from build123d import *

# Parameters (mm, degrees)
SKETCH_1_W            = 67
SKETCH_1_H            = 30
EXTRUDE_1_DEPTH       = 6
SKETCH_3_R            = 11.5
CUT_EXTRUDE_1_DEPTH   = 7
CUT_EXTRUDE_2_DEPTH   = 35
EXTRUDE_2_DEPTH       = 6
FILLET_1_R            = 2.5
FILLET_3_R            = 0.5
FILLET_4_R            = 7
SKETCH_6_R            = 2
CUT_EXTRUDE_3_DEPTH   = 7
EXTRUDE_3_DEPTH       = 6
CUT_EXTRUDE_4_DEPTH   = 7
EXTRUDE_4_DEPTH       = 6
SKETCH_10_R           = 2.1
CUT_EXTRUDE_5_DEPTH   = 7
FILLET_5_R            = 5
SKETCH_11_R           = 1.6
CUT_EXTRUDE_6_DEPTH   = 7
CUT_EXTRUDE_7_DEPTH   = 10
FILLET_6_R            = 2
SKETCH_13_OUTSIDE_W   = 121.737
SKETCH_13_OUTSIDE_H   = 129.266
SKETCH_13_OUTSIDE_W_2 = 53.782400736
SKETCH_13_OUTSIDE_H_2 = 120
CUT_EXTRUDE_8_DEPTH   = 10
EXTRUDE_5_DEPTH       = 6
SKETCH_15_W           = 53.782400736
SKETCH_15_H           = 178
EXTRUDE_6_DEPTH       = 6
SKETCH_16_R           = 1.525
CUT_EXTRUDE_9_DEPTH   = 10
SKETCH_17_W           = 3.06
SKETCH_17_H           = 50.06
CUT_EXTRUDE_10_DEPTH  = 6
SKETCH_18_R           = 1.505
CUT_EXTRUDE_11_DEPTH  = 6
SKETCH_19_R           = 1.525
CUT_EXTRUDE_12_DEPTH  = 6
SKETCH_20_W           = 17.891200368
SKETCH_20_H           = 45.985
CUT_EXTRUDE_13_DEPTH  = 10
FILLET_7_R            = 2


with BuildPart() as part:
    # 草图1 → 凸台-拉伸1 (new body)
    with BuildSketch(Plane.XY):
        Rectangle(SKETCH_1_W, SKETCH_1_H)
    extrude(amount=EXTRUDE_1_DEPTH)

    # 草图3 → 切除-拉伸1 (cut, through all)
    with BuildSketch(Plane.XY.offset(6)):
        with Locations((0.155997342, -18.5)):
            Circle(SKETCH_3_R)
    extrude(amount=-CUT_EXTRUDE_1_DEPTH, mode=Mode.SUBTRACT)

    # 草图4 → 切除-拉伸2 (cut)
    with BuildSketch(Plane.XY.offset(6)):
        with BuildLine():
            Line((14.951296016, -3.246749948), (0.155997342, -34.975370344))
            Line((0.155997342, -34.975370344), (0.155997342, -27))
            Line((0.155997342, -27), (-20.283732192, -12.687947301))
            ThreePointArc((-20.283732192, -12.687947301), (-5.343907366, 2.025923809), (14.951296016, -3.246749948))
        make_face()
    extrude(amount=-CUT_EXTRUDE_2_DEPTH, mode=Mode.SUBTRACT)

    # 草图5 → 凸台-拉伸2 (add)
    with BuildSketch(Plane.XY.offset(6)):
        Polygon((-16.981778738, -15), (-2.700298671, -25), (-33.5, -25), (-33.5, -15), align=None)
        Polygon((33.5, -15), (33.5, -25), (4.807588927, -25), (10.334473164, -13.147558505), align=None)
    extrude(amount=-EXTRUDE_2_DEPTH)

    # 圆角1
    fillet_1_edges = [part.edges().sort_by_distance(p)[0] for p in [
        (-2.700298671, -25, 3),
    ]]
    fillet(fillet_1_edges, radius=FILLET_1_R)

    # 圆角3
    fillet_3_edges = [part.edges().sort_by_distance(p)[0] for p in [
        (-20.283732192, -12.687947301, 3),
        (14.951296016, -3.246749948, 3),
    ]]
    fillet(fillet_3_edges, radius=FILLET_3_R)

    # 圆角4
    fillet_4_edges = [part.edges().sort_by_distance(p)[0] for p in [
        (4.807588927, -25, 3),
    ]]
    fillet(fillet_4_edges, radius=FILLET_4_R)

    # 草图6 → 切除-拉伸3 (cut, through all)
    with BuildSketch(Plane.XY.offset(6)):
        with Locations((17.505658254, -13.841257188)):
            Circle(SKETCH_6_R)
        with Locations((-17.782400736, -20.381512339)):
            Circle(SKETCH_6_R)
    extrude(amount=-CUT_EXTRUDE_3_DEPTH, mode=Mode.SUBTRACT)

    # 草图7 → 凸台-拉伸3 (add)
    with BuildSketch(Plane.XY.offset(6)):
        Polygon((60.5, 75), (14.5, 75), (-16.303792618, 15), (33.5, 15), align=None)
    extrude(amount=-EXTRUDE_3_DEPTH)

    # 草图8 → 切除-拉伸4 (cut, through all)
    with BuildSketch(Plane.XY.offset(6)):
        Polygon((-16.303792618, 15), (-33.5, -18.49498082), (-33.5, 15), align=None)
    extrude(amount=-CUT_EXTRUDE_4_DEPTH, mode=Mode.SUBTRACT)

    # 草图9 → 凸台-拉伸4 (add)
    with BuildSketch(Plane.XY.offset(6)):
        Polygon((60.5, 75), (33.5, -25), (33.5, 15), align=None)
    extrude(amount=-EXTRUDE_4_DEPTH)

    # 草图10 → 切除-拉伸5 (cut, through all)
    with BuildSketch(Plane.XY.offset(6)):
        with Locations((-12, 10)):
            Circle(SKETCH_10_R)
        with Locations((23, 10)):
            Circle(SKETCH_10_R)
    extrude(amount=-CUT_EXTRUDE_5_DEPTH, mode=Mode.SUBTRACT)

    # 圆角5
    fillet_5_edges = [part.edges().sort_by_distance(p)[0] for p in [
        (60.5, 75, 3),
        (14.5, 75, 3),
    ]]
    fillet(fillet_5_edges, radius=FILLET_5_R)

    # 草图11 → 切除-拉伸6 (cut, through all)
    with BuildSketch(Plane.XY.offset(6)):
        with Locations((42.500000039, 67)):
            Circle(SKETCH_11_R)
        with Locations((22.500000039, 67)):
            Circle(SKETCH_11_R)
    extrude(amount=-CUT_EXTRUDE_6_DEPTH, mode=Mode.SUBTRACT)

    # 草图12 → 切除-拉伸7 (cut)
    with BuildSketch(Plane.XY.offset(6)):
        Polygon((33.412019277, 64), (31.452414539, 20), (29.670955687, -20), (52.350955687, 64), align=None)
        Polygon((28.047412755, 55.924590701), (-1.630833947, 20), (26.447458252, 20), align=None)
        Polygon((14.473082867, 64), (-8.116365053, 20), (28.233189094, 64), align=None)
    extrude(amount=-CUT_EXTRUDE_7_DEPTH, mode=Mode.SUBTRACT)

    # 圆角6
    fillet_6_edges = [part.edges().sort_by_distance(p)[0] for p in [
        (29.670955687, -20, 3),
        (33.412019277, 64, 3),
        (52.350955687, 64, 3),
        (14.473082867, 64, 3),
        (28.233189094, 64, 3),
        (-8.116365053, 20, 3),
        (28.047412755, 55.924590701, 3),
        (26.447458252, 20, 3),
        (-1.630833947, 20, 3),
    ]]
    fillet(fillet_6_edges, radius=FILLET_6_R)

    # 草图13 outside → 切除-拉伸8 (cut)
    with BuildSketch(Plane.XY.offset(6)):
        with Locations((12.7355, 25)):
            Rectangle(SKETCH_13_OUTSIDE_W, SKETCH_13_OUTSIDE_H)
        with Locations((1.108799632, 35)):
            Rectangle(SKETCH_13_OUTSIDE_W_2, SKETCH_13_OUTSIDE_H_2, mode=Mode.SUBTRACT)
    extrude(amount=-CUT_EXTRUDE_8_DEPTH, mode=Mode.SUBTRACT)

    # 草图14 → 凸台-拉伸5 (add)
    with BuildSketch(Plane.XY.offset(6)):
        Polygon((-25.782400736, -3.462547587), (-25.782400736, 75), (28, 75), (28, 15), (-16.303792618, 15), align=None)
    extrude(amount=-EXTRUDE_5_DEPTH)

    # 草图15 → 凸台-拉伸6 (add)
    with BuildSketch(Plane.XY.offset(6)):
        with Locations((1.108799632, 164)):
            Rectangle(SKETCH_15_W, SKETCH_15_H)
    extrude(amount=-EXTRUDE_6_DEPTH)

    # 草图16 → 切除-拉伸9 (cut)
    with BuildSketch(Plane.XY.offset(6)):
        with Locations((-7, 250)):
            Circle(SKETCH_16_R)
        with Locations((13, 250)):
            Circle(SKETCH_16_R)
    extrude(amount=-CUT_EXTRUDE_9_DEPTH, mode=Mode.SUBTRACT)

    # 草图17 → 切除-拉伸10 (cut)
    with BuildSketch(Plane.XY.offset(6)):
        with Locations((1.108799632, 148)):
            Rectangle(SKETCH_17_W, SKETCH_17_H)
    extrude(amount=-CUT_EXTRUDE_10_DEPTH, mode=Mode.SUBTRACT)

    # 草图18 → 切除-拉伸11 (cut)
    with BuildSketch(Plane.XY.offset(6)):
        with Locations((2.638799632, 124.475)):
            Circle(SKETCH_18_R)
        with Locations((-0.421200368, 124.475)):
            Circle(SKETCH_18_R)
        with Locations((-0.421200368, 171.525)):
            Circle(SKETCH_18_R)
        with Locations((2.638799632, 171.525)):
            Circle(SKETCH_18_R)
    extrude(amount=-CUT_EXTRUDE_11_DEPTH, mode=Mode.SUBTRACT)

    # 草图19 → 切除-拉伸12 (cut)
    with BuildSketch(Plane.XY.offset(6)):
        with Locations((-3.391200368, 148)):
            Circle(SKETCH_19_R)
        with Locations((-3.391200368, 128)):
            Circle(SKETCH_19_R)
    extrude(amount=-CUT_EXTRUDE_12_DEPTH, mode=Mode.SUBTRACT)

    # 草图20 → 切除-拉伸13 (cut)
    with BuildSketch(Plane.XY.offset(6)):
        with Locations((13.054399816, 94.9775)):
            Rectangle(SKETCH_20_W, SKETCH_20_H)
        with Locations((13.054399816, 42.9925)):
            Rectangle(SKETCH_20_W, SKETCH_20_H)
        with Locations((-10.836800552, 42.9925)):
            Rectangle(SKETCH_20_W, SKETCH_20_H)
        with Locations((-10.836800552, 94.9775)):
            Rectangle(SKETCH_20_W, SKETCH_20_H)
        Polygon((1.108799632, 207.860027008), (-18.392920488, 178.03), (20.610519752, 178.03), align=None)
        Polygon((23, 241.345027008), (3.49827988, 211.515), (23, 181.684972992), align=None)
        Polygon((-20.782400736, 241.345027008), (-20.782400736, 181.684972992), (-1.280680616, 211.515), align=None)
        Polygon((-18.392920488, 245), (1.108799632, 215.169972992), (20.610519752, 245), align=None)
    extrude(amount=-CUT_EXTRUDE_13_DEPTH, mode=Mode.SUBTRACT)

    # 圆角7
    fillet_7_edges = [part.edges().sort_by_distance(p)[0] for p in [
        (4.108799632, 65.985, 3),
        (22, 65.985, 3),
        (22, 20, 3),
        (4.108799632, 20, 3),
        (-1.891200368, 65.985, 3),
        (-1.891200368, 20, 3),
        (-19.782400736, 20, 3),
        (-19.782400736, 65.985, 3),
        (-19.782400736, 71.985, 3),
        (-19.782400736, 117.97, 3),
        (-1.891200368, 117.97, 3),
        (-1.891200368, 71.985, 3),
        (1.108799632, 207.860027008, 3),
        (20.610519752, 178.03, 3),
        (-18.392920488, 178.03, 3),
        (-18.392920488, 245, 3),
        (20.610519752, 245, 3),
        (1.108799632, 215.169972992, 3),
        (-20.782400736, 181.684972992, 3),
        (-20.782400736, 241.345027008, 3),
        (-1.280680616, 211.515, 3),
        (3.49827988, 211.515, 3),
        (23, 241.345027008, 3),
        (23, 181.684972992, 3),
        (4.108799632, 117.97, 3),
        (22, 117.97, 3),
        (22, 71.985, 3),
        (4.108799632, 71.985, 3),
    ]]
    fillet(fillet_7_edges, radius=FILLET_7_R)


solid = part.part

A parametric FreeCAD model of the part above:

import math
import FreeCAD as App
import Part
import Sketcher
Q = App.Units.Quantity


def edges_at(feature, points):
    """Names of the edges that pass closest to the given points."""
    edges = feature.Shape.Edges
    near = lambda p: min(range(len(edges)), key=lambda i: edges[i].distToShape(Part.Vertex(*p))[0])
    return sorted({f"Edge{near(p) + 1}" for p in points})

doc = App.newDocument("Part")
body = doc.addObject("PartDesign::Body", "Body")

# Sketch on XY plane
sketch1 = doc.addObject("Sketcher::SketchObject", "Sketch")
body.addObject(sketch1)
sketch1.AttachmentSupport = (doc.XY_Plane, [""])
sketch1.MapMode = "FlatFace"
sketch1.addGeometry([
    Part.LineSegment(App.Vector(-34, 15, 0), App.Vector(-34, -15, 0)),
    Part.LineSegment(App.Vector(-34, -15, 0), App.Vector(34, -15, 0)),
    Part.LineSegment(App.Vector(34, -15, 0), App.Vector(34, 15, 0)),
    Part.LineSegment(App.Vector(34, 15, 0), App.Vector(-34, 15, 0)),
], False)
sketch1.addConstraint([
    Sketcher.Constraint("Coincident", 0, 2, 1, 1),
    Sketcher.Constraint("Coincident", 1, 2, 2, 1),
    Sketcher.Constraint("Coincident", 2, 2, 3, 1),
    Sketcher.Constraint("Coincident", 3, 2, 0, 1),
    Sketcher.Constraint("Vertical", 0),
    Sketcher.Constraint("Horizontal", 1),
    Sketcher.Constraint("Vertical", 2),
    Sketcher.Constraint("Horizontal", 3),
    Sketcher.Constraint("Symmetric", 0, 2, 2, 2, -1, 1),
    Sketcher.Constraint("DistanceX", 1, 1, 1, 2, Q("67 mm")),
    Sketcher.Constraint("DistanceY", 0, 2, 0, 1, Q("30 mm")),
])
pad1 = doc.addObject("PartDesign::Pad", "Pad")
body.addObject(pad1)
pad1.Profile = sketch1
pad1.Length = 6

# Sketch on XY plane
sketch2 = doc.addObject("Sketcher::SketchObject", "Sketch001")
body.addObject(sketch2)
sketch2.AttachmentSupport = (doc.XY_Plane, [""])
sketch2.MapMode = "FlatFace"
sketch2.AttachmentOffset = App.Placement(App.Vector(0, 0, 6), App.Rotation())
sketch2.addGeometry(Part.Circle(App.Vector(0, -18, 0), App.Vector(0, 0, 1), 12), False)
sketch2.addConstraint([
    Sketcher.Constraint("Diameter", 0, Q("23 mm")),
    Sketcher.Constraint("DistanceY", 0, 3, -1, 1, Q("18.5 mm")),
    Sketcher.Constraint("DistanceX", -1, 1, 0, 3, Q("0.155997 mm")),
])
pocket1 = doc.addObject("PartDesign::Pocket", "Pocket")
body.addObject(pocket1)
pocket1.Profile = sketch2
pocket1.Type = "ThroughAll"

# Sketch on XY plane
sketch3 = doc.addObject("Sketcher::SketchObject", "Sketch002")
body.addObject(sketch3)
sketch3.AttachmentSupport = (doc.XY_Plane, [""])
sketch3.MapMode = "FlatFace"
sketch3.AttachmentOffset = App.Placement(App.Vector(0, 0, 6), App.Rotation())
sketch3.addGeometry([
    Part.LineSegment(App.Vector(0, -35, 0), App.Vector(15, -3, 0)),
    Part.ArcOfCircle(Part.Circle(App.Vector(0, -18, 0), App.Vector(0, 0, 1), 21), math.radians(46), math.radians(164)),
    Part.LineSegment(App.Vector(-20, -13, 0), App.Vector(0, -27, 0)),
    Part.LineSegment(App.Vector(0, -27, 0), App.Vector(0, -35, 0)),
], False)
sketch3.addConstraint([
    Sketcher.Constraint("Coincident", 0, 2, 1, 1),
    Sketcher.Constraint("Coincident", 1, 2, 2, 1),
    Sketcher.Constraint("Coincident", 2, 2, 3, 1),
    Sketcher.Constraint("Coincident", 3, 2, 0, 1),
    Sketcher.Constraint("Vertical", 3),
    Sketcher.Constraint("Vertical", 1, 3, 2, 2),
    Sketcher.Constraint("Angle", 0, Q("65 deg")),
    Sketcher.Constraint("Angle", 2, Q("-35 deg")),
    Sketcher.Constraint("Radius", 1, Q("21.25 mm")),
    Sketcher.Constraint("DistanceY", 2, 2, -1, 1, Q("27 mm")),
    Sketcher.Constraint("DistanceY", 1, 3, -1, 1, Q("18.5 mm")),
    Sketcher.Constraint("DistanceY", 3, 2, 3, 1, Q("7.97537 mm")),
    Sketcher.Constraint("DistanceX", -1, 1, 1, 3, Q("0.155997 mm")),
])
pocket2 = doc.addObject("PartDesign::Pocket", "Pocket001")
body.addObject(pocket2)
pocket2.Profile = sketch3
pocket2.Length = 35

# Sketch on XY plane
sketch4 = doc.addObject("Sketcher::SketchObject", "Sketch003")
body.addObject(sketch4)
sketch4.AttachmentSupport = (doc.XY_Plane, [""])
sketch4.MapMode = "FlatFace"
sketch4.AttachmentOffset = App.Placement(App.Vector(0, 0, 6), App.Rotation())
sketch4.addGeometry([
    Part.LineSegment(App.Vector(-3, -25, 0), App.Vector(-17, -15, 0)),  # 0
    Part.LineSegment(App.Vector(-17, -15, 0), App.Vector(-34, -15, 0)),  # 1
    Part.LineSegment(App.Vector(-34, -15, 0), App.Vector(-34, -25, 0)),  # 2
    Part.LineSegment(App.Vector(-34, -25, 0), App.Vector(-3, -25, 0)),  # 3
    Part.LineSegment(App.Vector(34, -25, 0), App.Vector(34, -15, 0)),  # 4
    Part.LineSegment(App.Vector(34, -15, 0), App.Vector(10, -13, 0)),  # 5
    Part.LineSegment(App.Vector(10, -13, 0), App.Vector(5, -25, 0)),  # 6
    Part.LineSegment(App.Vector(5, -25, 0), App.Vector(34, -25, 0)),  # 7
], False)
sketch4.addConstraint([
    Sketcher.Constraint("Coincident", 0, 2, 1, 1),
    Sketcher.Constraint("Coincident", 1, 2, 2, 1),
    Sketcher.Constraint("Coincident", 2, 2, 3, 1),
    Sketcher.Constraint("Coincident", 3, 2, 0, 1),
    Sketcher.Constraint("Coincident", 4, 2, 5, 1),
    Sketcher.Constraint("Coincident", 5, 2, 6, 1),
    Sketcher.Constraint("Coincident", 6, 2, 7, 1),
    Sketcher.Constraint("Coincident", 7, 2, 4, 1),
    Sketcher.Constraint("Horizontal", 1),
    Sketcher.Constraint("Vertical", 2),
    Sketcher.Constraint("Horizontal", 3),
    Sketcher.Constraint("Vertical", 4),
    Sketcher.Constraint("Horizontal", 7),
    Sketcher.Constraint("Symmetric", 1, 2, 4, 2, -2),
    Sketcher.Constraint("Horizontal", 3, 2, 6, 2),
    Sketcher.Constraint("DistanceY", 2, 2, 2, 1, Q("10 mm")),
    Sketcher.Constraint("Angle", 0, Q("145 deg")),
    Sketcher.Constraint("Angle", 6, Q("-115 deg")),
    Sketcher.Constraint("DistanceY", 0, 2, -1, 1, Q("15 mm")),
    Sketcher.Constraint("DistanceX", 1, 2, 4, 2, Q("67 mm")),
    Sketcher.Constraint("DistanceX", 3, 1, 3, 2, Q("30.799701 mm")),
    Sketcher.Constraint("DistanceX", 7, 1, 7, 2, Q("28.692411 mm")),
    Sketcher.Constraint("DistanceY", 5, 2, -1, 1, Q("13.147559 mm")),
])
pad2 = doc.addObject("PartDesign::Pad", "Pad001")
body.addObject(pad2)
pad2.Profile = sketch4
pad2.Length = 6
pad2.Reversed = True
doc.recompute()

fillet = doc.addObject("PartDesign::Fillet", "Fillet")
body.addObject(fillet)
fillet.Base = (pad2, edges_at(pad2, [(-2.7, -25, 3)]))
fillet.Radius = 2.5
doc.recompute()

fillet2 = doc.addObject("PartDesign::Fillet", "Fillet001")
body.addObject(fillet2)
fillet2.Base = (fillet, edges_at(fillet, [(-20.284, -12.688, 3), (14.951, -3.247, 3)]))
fillet2.Radius = 0.5
doc.recompute()

fillet3 = doc.addObject("PartDesign::Fillet", "Fillet002")
body.addObject(fillet3)
fillet3.Base = (fillet2, edges_at(fillet2, [(4.808, -25, 3)]))
fillet3.Radius = 7

# Sketch on XY plane
sketch5 = doc.addObject("Sketcher::SketchObject", "Sketch004")
body.addObject(sketch5)
sketch5.AttachmentSupport = (doc.XY_Plane, [""])
sketch5.MapMode = "FlatFace"
sketch5.AttachmentOffset = App.Placement(App.Vector(0, 0, 6), App.Rotation())
sketch5.addGeometry([
    Part.Circle(App.Vector(17.5, -13.8, 0), App.Vector(0, 0, 1), 2),
    Part.Circle(App.Vector(-17.8, -20.4, 0), App.Vector(0, 0, 1), 2),
], False)
sketch5.addConstraint([
    Sketcher.Constraint("Equal", 0, 1),
    Sketcher.Constraint("Diameter", 0, Q("4 mm")),
    Sketcher.Constraint("DistanceX", 1, 3, -1, 1, Q("17.782401 mm")),
    Sketcher.Constraint("DistanceX", -1, 1, 0, 3, Q("17.505658 mm")),
    Sketcher.Constraint("DistanceY", 0, 3, -1, 1, Q("13.841257 mm")),
    Sketcher.Constraint("DistanceY", 1, 3, -1, 1, Q("20.381512 mm")),
])
pocket3 = doc.addObject("PartDesign::Pocket", "Pocket002")
body.addObject(pocket3)
pocket3.Profile = sketch5
pocket3.Type = "ThroughAll"

# Sketch on XY plane
sketch6 = doc.addObject("Sketcher::SketchObject", "Sketch005")
body.addObject(sketch6)
sketch6.AttachmentSupport = (doc.XY_Plane, [""])
sketch6.MapMode = "FlatFace"
sketch6.AttachmentOffset = App.Placement(App.Vector(0, 0, 6), App.Rotation())
sketch6.addGeometry([
    Part.LineSegment(App.Vector(60, 75, 0), App.Vector(14, 75, 0)),
    Part.LineSegment(App.Vector(14, 75, 0), App.Vector(-16, 15, 0)),
    Part.LineSegment(App.Vector(-16, 15, 0), App.Vector(34, 15, 0)),
    Part.LineSegment(App.Vector(34, 15, 0), App.Vector(60, 75, 0)),
], False)
sketch6.addConstraint([
    Sketcher.Constraint("Coincident", 0, 2, 1, 1),
    Sketcher.Constraint("Coincident", 1, 2, 2, 1),
    Sketcher.Constraint("Coincident", 2, 2, 3, 1),
    Sketcher.Constraint("Coincident", 3, 2, 0, 1),
    Sketcher.Constraint("Horizontal", 0),
    Sketcher.Constraint("Horizontal", 2),
    Sketcher.Constraint("DistanceX", 0, 2, 0, 1, Q("46 mm")),
    Sketcher.Constraint("DistanceY", -1, 1, 0, 2, Q("75 mm")),
    Sketcher.Constraint("DistanceY", -1, 1, 1, 2, Q("15 mm")),
    Sketcher.Constraint("DistanceX", 0, 2, 2, 2, Q("19 mm")),
    Sketcher.Constraint("DistanceX", -1, 1, 0, 2, Q("14.5 mm")),
    Sketcher.Constraint("Distance", 1, Q("67.445338 mm")),
])
pad3 = doc.addObject("PartDesign::Pad", "Pad002")
body.addObject(pad3)
pad3.Profile = sketch6
pad3.Length = 6
pad3.Reversed = True

# Sketch on XY plane
sketch7 = doc.addObject("Sketcher::SketchObject", "Sketch006")
body.addObject(sketch7)
sketch7.AttachmentSupport = (doc.XY_Plane, [""])
sketch7.MapMode = "FlatFace"
sketch7.AttachmentOffset = App.Placement(App.Vector(0, 0, 6), App.Rotation())
sketch7.addGeometry([
    Part.LineSegment(App.Vector(-34, -18, 0), App.Vector(-16, 15, 0)),
    Part.LineSegment(App.Vector(-16, 15, 0), App.Vector(-34, 15, 0)),
    Part.LineSegment(App.Vector(-34, 15, 0), App.Vector(-34, -18, 0)),
], False)
sketch7.addConstraint([
    Sketcher.Constraint("Coincident", 0, 2, 1, 1),
    Sketcher.Constraint("Coincident", 1, 2, 2, 1),
    Sketcher.Constraint("Coincident", 2, 2, 0, 1),
    Sketcher.Constraint("Horizontal", 1),
    Sketcher.Constraint("Vertical", 2),
    Sketcher.Constraint("DistanceY", -1, 1, 0, 2, Q("15 mm")),
    Sketcher.Constraint("DistanceX", 1, 2, -1, 1, Q("33.5 mm")),
    Sketcher.Constraint("DistanceY", 2, 2, 2, 1, Q("33.494981 mm")),
    Sketcher.Constraint("Distance", 0, Q("37.651338 mm")),
])
pocket4 = doc.addObject("PartDesign::Pocket", "Pocket003")
body.addObject(pocket4)
pocket4.Profile = sketch7
pocket4.Type = "ThroughAll"

# Sketch on XY plane
sketch8 = doc.addObject("Sketcher::SketchObject", "Sketch007")
body.addObject(sketch8)
sketch8.AttachmentSupport = (doc.XY_Plane, [""])
sketch8.MapMode = "FlatFace"
sketch8.AttachmentOffset = App.Placement(App.Vector(0, 0, 6), App.Rotation())
sketch8.addGeometry([
    Part.LineSegment(App.Vector(34, -25, 0), App.Vector(60, 75, 0)),
    Part.LineSegment(App.Vector(60, 75, 0), App.Vector(34, 15, 0)),
    Part.LineSegment(App.Vector(34, 15, 0), App.Vector(34, -25, 0)),
], False)
sketch8.addConstraint([
    Sketcher.Constraint("Coincident", 0, 2, 1, 1),
    Sketcher.Constraint("Coincident", 1, 2, 2, 1),
    Sketcher.Constraint("Coincident", 2, 2, 0, 1),
    Sketcher.Constraint("Vertical", 2),
    Sketcher.Constraint("DistanceY", 2, 2, 2, 1, Q("40 mm")),
    Sketcher.Constraint("DistanceY", -1, 1, 0, 2, Q("75 mm")),
    Sketcher.Constraint("DistanceY", -1, 1, 1, 2, Q("15 mm")),
    Sketcher.Constraint("DistanceX", 1, 2, 0, 2, Q("27 mm")),
    Sketcher.Constraint("DistanceX", -1, 1, 0, 2, Q("60.5 mm")),
])
pad4 = doc.addObject("PartDesign::Pad", "Pad003")
body.addObject(pad4)
pad4.Profile = sketch8
pad4.Length = 6
pad4.Reversed = True

# Sketch on XY plane
sketch9 = doc.addObject("Sketcher::SketchObject", "Sketch008")
body.addObject(sketch9)
sketch9.AttachmentSupport = (doc.XY_Plane, [""])
sketch9.MapMode = "FlatFace"
sketch9.AttachmentOffset = App.Placement(App.Vector(0, 0, 6), App.Rotation())
sketch9.addGeometry([
    Part.Circle(App.Vector(-12, 10, 0), App.Vector(0, 0, 1), 2.1),
    Part.Circle(App.Vector(23, 10, 0), App.Vector(0, 0, 1), 2.1),
], False)
sketch9.addConstraint([
    Sketcher.Constraint("Equal", 0, 1),
    Sketcher.Constraint("Horizontal", 0, 3, 1, 3),
    Sketcher.Constraint("Diameter", 0, Q("4.2 mm")),
    Sketcher.Constraint("DistanceX", 0, 3, -1, 1, Q("12 mm")),
    Sketcher.Constraint("DistanceY", -1, 1, 0, 3, Q("10 mm")),
    Sketcher.Constraint("DistanceX", -1, 1, 1, 3, Q("23 mm")),
])
pocket5 = doc.addObject("PartDesign::Pocket", "Pocket004")
body.addObject(pocket5)
pocket5.Profile = sketch9
pocket5.Type = "ThroughAll"
doc.recompute()

fillet4 = doc.addObject("PartDesign::Fillet", "Fillet003")
body.addObject(fillet4)
fillet4.Base = (pocket5, edges_at(pocket5, [(60.5, 75, 3), (14.5, 75, 3)]))
fillet4.Radius = 5

# Sketch on XY plane
sketch10 = doc.addObject("Sketcher::SketchObject", "Sketch009")
body.addObject(sketch10)
sketch10.AttachmentSupport = (doc.XY_Plane, [""])
sketch10.MapMode = "FlatFace"
sketch10.AttachmentOffset = App.Placement(App.Vector(0, 0, 6), App.Rotation())
sketch10.addGeometry([
    Part.Circle(App.Vector(42.5, 67, 0), App.Vector(0, 0, 1), 1.6),
    Part.Circle(App.Vector(22.5, 67, 0), App.Vector(0, 0, 1), 1.6),
], False)
sketch10.addConstraint([
    Sketcher.Constraint("Equal", 0, 1),
    Sketcher.Constraint("Horizontal", 0, 3, 1, 3),
    Sketcher.Constraint("Diameter", 0, Q("3.2 mm")),
    Sketcher.Constraint("DistanceY", -1, 1, 0, 3, Q("67 mm")),
    Sketcher.Constraint("DistanceX", 1, 3, 0, 3, Q("20 mm")),
    Sketcher.Constraint("DistanceX", -1, 1, 0, 3, Q("42.5 mm")),
])
pocket6 = doc.addObject("PartDesign::Pocket", "Pocket005")
body.addObject(pocket6)
pocket6.Profile = sketch10
pocket6.Type = "ThroughAll"

# Sketch on XY plane
sketch11 = doc.addObject("Sketcher::SketchObject", "Sketch010")
body.addObject(sketch11)
sketch11.AttachmentSupport = (doc.XY_Plane, [""])
sketch11.MapMode = "FlatFace"
sketch11.AttachmentOffset = App.Placement(App.Vector(0, 0, 6), App.Rotation())
sketch11.addGeometry([
    Part.LineSegment(App.Vector(33, 64, 0), App.Vector(31, 20, 0)),  # 0
    Part.LineSegment(App.Vector(31, 20, 0), App.Vector(30, -20, 0)),  # 1
    Part.LineSegment(App.Vector(30, -20, 0), App.Vector(52, 64, 0)),  # 2
    Part.LineSegment(App.Vector(52, 64, 0), App.Vector(33, 64, 0)),  # 3
    Part.LineSegment(App.Vector(28, 56, 0), App.Vector(-2, 20, 0)),  # 4
    Part.LineSegment(App.Vector(-2, 20, 0), App.Vector(26, 20, 0)),  # 5
    Part.LineSegment(App.Vector(26, 20, 0), App.Vector(28, 56, 0)),  # 6
    Part.LineSegment(App.Vector(14, 64, 0), App.Vector(-8, 20, 0)),  # 7
    Part.LineSegment(App.Vector(-8, 20, 0), App.Vector(28, 64, 0)),  # 8
    Part.LineSegment(App.Vector(28, 64, 0), App.Vector(14, 64, 0)),  # 9
], False)
sketch11.addConstraint([
    Sketcher.Constraint("Coincident", 0, 2, 1, 1),
    Sketcher.Constraint("Coincident", 1, 2, 2, 1),
    Sketcher.Constraint("Coincident", 2, 2, 3, 1),
    Sketcher.Constraint("Coincident", 3, 2, 0, 1),
    Sketcher.Constraint("Coincident", 4, 2, 5, 1),
    Sketcher.Constraint("Coincident", 5, 2, 6, 1),
    Sketcher.Constraint("Coincident", 6, 2, 4, 1),
    Sketcher.Constraint("Coincident", 7, 2, 8, 1),
    Sketcher.Constraint("Coincident", 8, 2, 9, 1),
    Sketcher.Constraint("Coincident", 9, 2, 7, 1),
    Sketcher.Constraint("Horizontal", 3),
    Sketcher.Constraint("Horizontal", 5),
    Sketcher.Constraint("Horizontal", 9),
    Sketcher.Constraint("Parallel", 0, 1),
    Sketcher.Constraint("Parallel", 1, 6),
    Sketcher.Constraint("Parallel", 4, 8),
    Sketcher.Constraint("Horizontal", 0, 2, 4, 2),
    Sketcher.Constraint("Horizontal", 5, 2, 7, 2),
    Sketcher.Constraint("Horizontal", 3, 2, 8, 2),
    Sketcher.Constraint("DistanceY", -1, 1, 0, 2, Q("20 mm")),
    Sketcher.Constraint("DistanceY", 1, 2, -1, 1, Q("20 mm")),
    Sketcher.Constraint("DistanceY", -1, 1, 2, 2, Q("64 mm")),
    Sketcher.Constraint("DistanceX", 1, 2, 2, 2, Q("22.68 mm")),
    Sketcher.Constraint("DistanceX", 6, 2, 0, 2, Q("3.405002 mm")),
    Sketcher.Constraint("Distance", 6, Q("35.960201 mm")),
    Sketcher.Constraint("Distance", 1, Q("40.03965 mm")),
    Sketcher.Constraint("Distance", 4, Q("46.59801 mm")),
    Sketcher.Constraint("DistanceX", 9, 2, 9, 1, Q("13.760106 mm")),
    Sketcher.Constraint("DistanceX", -1, 1, 3, 2, Q("33.412019 mm")),
    Sketcher.Constraint("DistanceX", -1, 1, 8, 2, Q("28.233189 mm")),
])
pocket7 = doc.addObject("PartDesign::Pocket", "Pocket006")
body.addObject(pocket7)
pocket7.Profile = sketch11
pocket7.Length = 10
doc.recompute()

fillet5 = doc.addObject("PartDesign::Fillet", "Fillet004")
body.addObject(fillet5)
fillet5.Base = (pocket7, edges_at(pocket7, [
    (29.671, -20, 3),
    (33.412, 64, 3),
    (52.351, 64, 3),
    (14.473, 64, 3),
    (28.233, 64, 3),
    (-8.116, 20, 3),
    (28.047, 55.925, 3),
    (26.447, 20, 3),
    (-1.631, 20, 3),
]))
fillet5.Radius = 2

# Sketch on XY plane
sketch12 = doc.addObject("Sketcher::SketchObject", "Sketch011")
body.addObject(sketch12)
sketch12.AttachmentSupport = (doc.XY_Plane, [""])
sketch12.MapMode = "FlatFace"
sketch12.AttachmentOffset = App.Placement(App.Vector(0, 0, 6), App.Rotation())
sketch12.addGeometry([
    Part.LineSegment(App.Vector(-48, 90, 0), App.Vector(-48, -40, 0)),  # 0
    Part.LineSegment(App.Vector(-48, -40, 0), App.Vector(74, -40, 0)),  # 1
    Part.LineSegment(App.Vector(74, -40, 0), App.Vector(74, 90, 0)),  # 2
    Part.LineSegment(App.Vector(74, 90, 0), App.Vector(28, 90, 0)),  # 3
    Part.LineSegment(App.Vector(28, 90, 0), App.Vector(28, -25, 0)),  # 4
    Part.LineSegment(App.Vector(28, -25, 0), App.Vector(-26, -25, 0)),  # 5
    Part.LineSegment(App.Vector(-26, -25, 0), App.Vector(-26, 90, 0)),  # 6
    Part.LineSegment(App.Vector(-26, 90, 0), App.Vector(-48, 90, 0)),  # 7
], False)
sketch12.addConstraint([
    Sketcher.Constraint("Coincident", 0, 2, 1, 1),
    Sketcher.Constraint("Coincident", 1, 2, 2, 1),
    Sketcher.Constraint("Coincident", 2, 2, 3, 1),
    Sketcher.Constraint("Coincident", 3, 2, 4, 1),
    Sketcher.Constraint("Coincident", 4, 2, 5, 1),
    Sketcher.Constraint("Coincident", 5, 2, 6, 1),
    Sketcher.Constraint("Coincident", 6, 2, 7, 1),
    Sketcher.Constraint("Coincident", 7, 2, 0, 1),
    Sketcher.Constraint("Vertical", 0),
    Sketcher.Constraint("Horizontal", 1),
    Sketcher.Constraint("Vertical", 2),
    Sketcher.Constraint("Horizontal", 3),
    Sketcher.Constraint("Vertical", 4),
    Sketcher.Constraint("Horizontal", 5),
    Sketcher.Constraint("Vertical", 6),
    Sketcher.Constraint("Horizontal", 7),
    Sketcher.Constraint("Horizontal", 3, 2, 6, 2),
    Sketcher.Constraint("DistanceX", -1, 1, 3, 2, Q("28 mm")),
    Sketcher.Constraint("DistanceY", 4, 2, -1, 1, Q("25 mm")),
    Sketcher.Constraint("DistanceX", 1, 1, 1, 2, Q("121.737 mm")),
    Sketcher.Constraint("DistanceX", 3, 2, 3, 1, Q("45.604 mm")),
    Sketcher.Constraint("DistanceY", 0, 2, 0, 1, Q("129.266 mm")),
    Sketcher.Constraint("DistanceY", 4, 2, 4, 1, Q("114.633 mm")),
    Sketcher.Constraint("DistanceX", 5, 2, 5, 1, Q("53.782401 mm")),
])
pocket8 = doc.addObject("PartDesign::Pocket", "Pocket007")
body.addObject(pocket8)
pocket8.Profile = sketch12
pocket8.Length = 10

# Sketch on XY plane
sketch13 = doc.addObject("Sketcher::SketchObject", "Sketch012")
body.addObject(sketch13)
sketch13.AttachmentSupport = (doc.XY_Plane, [""])
sketch13.MapMode = "FlatFace"
sketch13.AttachmentOffset = App.Placement(App.Vector(0, 0, 6), App.Rotation())
sketch13.addGeometry([
    Part.LineSegment(App.Vector(-26, 75, 0), App.Vector(-26, -3, 0)),  # 0
    Part.LineSegment(App.Vector(-26, -3, 0), App.Vector(-16, 15, 0)),  # 1
    Part.LineSegment(App.Vector(-16, 15, 0), App.Vector(28, 15, 0)),  # 2
    Part.LineSegment(App.Vector(28, 15, 0), App.Vector(28, 75, 0)),  # 3
    Part.LineSegment(App.Vector(28, 75, 0), App.Vector(-26, 75, 0)),  # 4
], False)
sketch13.addConstraint([
    Sketcher.Constraint("Coincident", 0, 2, 1, 1),
    Sketcher.Constraint("Coincident", 1, 2, 2, 1),
    Sketcher.Constraint("Coincident", 2, 2, 3, 1),
    Sketcher.Constraint("Coincident", 3, 2, 4, 1),
    Sketcher.Constraint("Coincident", 4, 2, 0, 1),
    Sketcher.Constraint("Vertical", 0),
    Sketcher.Constraint("Horizontal", 2),
    Sketcher.Constraint("Vertical", 3),
    Sketcher.Constraint("Horizontal", 4),
    Sketcher.Constraint("DistanceY", 3, 1, 3, 2, Q("60 mm")),
    Sketcher.Constraint("DistanceY", -1, 1, 1, 2, Q("15 mm")),
    Sketcher.Constraint("DistanceX", -1, 1, 2, 2, Q("28 mm")),
    Sketcher.Constraint("DistanceX", 4, 2, 4, 1, Q("53.782401 mm")),
    Sketcher.Constraint("DistanceX", 2, 1, 2, 2, Q("44.303793 mm")),
    Sketcher.Constraint("DistanceY", 0, 2, 0, 1, Q("78.462548 mm")),
])
pad5 = doc.addObject("PartDesign::Pad", "Pad004")
body.addObject(pad5)
pad5.Profile = sketch13
pad5.Length = 6
pad5.Reversed = True

# Sketch on XY plane
sketch14 = doc.addObject("Sketcher::SketchObject", "Sketch013")
body.addObject(sketch14)
sketch14.AttachmentSupport = (doc.XY_Plane, [""])
sketch14.MapMode = "FlatFace"
sketch14.AttachmentOffset = App.Placement(App.Vector(0, 0, 6), App.Rotation())
sketch14.addGeometry([
    Part.LineSegment(App.Vector(-26, 253, 0), App.Vector(-26, 75, 0)),
    Part.LineSegment(App.Vector(-26, 75, 0), App.Vector(28, 75, 0)),
    Part.LineSegment(App.Vector(28, 75, 0), App.Vector(28, 253, 0)),
    Part.LineSegment(App.Vector(28, 253, 0), App.Vector(-26, 253, 0)),
], False)
sketch14.addConstraint([
    Sketcher.Constraint("Coincident", 0, 2, 1, 1),
    Sketcher.Constraint("Coincident", 1, 2, 2, 1),
    Sketcher.Constraint("Coincident", 2, 2, 3, 1),
    Sketcher.Constraint("Coincident", 3, 2, 0, 1),
    Sketcher.Constraint("Vertical", 0),
    Sketcher.Constraint("Horizontal", 1),
    Sketcher.Constraint("Vertical", 2),
    Sketcher.Constraint("Horizontal", 3),
    Sketcher.Constraint("DistanceY", 0, 2, 0, 1, Q("178 mm")),
    Sketcher.Constraint("DistanceY", -1, 1, 0, 2, Q("75 mm")),
    Sketcher.Constraint("DistanceX", -1, 1, 1, 2, Q("28 mm")),
    Sketcher.Constraint("DistanceX", 1, 1, 1, 2, Q("53.782401 mm")),
])
pad6 = doc.addObject("PartDesign::Pad", "Pad005")
body.addObject(pad6)
pad6.Profile = sketch14
pad6.Length = 6
pad6.Reversed = True

# Sketch on XY plane
sketch15 = doc.addObject("Sketcher::SketchObject", "Sketch014")
body.addObject(sketch15)
sketch15.AttachmentSupport = (doc.XY_Plane, [""])
sketch15.MapMode = "FlatFace"
sketch15.AttachmentOffset = App.Placement(App.Vector(0, 0, 6), App.Rotation())
sketch15.addGeometry([
    Part.Circle(App.Vector(-7, 250, 0), App.Vector(0, 0, 1), 1.5),
    Part.Circle(App.Vector(13, 250, 0), App.Vector(0, 0, 1), 1.5),
], False)
sketch15.addConstraint([
    Sketcher.Constraint("Equal", 0, 1),
    Sketcher.Constraint("Horizontal", 0, 3, 1, 3),
    Sketcher.Constraint("Diameter", 0, Q("3.05 mm")),
    Sketcher.Constraint("DistanceX", 0, 3, -1, 1, Q("7 mm")),
    Sketcher.Constraint("DistanceY", -1, 1, 0, 3, Q("250 mm")),
    Sketcher.Constraint("DistanceX", -1, 1, 1, 3, Q("13 mm")),
])
pocket9 = doc.addObject("PartDesign::Pocket", "Pocket008")
body.addObject(pocket9)
pocket9.Profile = sketch15
pocket9.Length = 10

# Sketch on XY plane
sketch16 = doc.addObject("Sketcher::SketchObject", "Sketch015")
body.addObject(sketch16)
sketch16.AttachmentSupport = (doc.XY_Plane, [""])
sketch16.MapMode = "FlatFace"
sketch16.AttachmentOffset = App.Placement(App.Vector(0, 0, 6), App.Rotation())
sketch16.addGeometry([
    Part.LineSegment(App.Vector(-0.4, 173, 0), App.Vector(-0.4, 123, 0)),
    Part.LineSegment(App.Vector(-0.4, 123, 0), App.Vector(2.6, 123, 0)),
    Part.LineSegment(App.Vector(2.6, 123, 0), App.Vector(2.6, 173, 0)),
    Part.LineSegment(App.Vector(2.6, 173, 0), App.Vector(-0.4, 173, 0)),
], False)
sketch16.addConstraint([
    Sketcher.Constraint("Coincident", 0, 2, 1, 1),
    Sketcher.Constraint("Coincident", 1, 2, 2, 1),
    Sketcher.Constraint("Coincident", 2, 2, 3, 1),
    Sketcher.Constraint("Coincident", 3, 2, 0, 1),
    Sketcher.Constraint("Vertical", 0),
    Sketcher.Constraint("Horizontal", 1),
    Sketcher.Constraint("Vertical", 2),
    Sketcher.Constraint("Horizontal", 3),
    Sketcher.Constraint("DistanceX", 1, 1, 1, 2, Q("3.06 mm")),
    Sketcher.Constraint("DistanceY", 0, 2, 0, 1, Q("50.06 mm")),
    Sketcher.Constraint("DistanceY", -1, 1, 0, 2, Q("122.97 mm")),
    Sketcher.Constraint("DistanceX", 0, 2, -1, 1, Q("0.4212 mm")),
])
pocket10 = doc.addObject("PartDesign::Pocket", "Pocket009")
body.addObject(pocket10)
pocket10.Profile = sketch16
pocket10.Length = 6

# Sketch on XY plane
sketch17 = doc.addObject("Sketcher::SketchObject", "Sketch016")
body.addObject(sketch17)
sketch17.AttachmentSupport = (doc.XY_Plane, [""])
sketch17.MapMode = "FlatFace"
sketch17.AttachmentOffset = App.Placement(App.Vector(0, 0, 6), App.Rotation())
sketch17.addGeometry([
    Part.Circle(App.Vector(2.6, 124.5, 0), App.Vector(0, 0, 1), 1.5),
    Part.Circle(App.Vector(-0.4, 124.5, 0), App.Vector(0, 0, 1), 1.5),
    Part.Circle(App.Vector(-0.4, 171.5, 0), App.Vector(0, 0, 1), 1.5),
    Part.Circle(App.Vector(2.6, 171.5, 0), App.Vector(0, 0, 1), 1.5),
], False)
sketch17.addConstraint([
    Sketcher.Constraint("Equal", 0, 1),
    Sketcher.Constraint("Equal", 1, 2),
    Sketcher.Constraint("Equal", 2, 3),
    Sketcher.Constraint("Horizontal", 0, 3, 1, 3),
    Sketcher.Constraint("Horizontal", 2, 3, 3, 3),
    Sketcher.Constraint("Vertical", 1, 3, 2, 3),
    Sketcher.Constraint("Vertical", 0, 3, 3, 3),
    Sketcher.Constraint("Diameter", 0, Q("3.01 mm")),
    Sketcher.Constraint("DistanceX", 1, 3, 0, 3, Q("3.06 mm")),
    Sketcher.Constraint("DistanceY", 1, 3, 2, 3, Q("47.05 mm")),
    Sketcher.Constraint("DistanceY", -1, 1, 0, 3, Q("124.475 mm")),
    Sketcher.Constraint("DistanceX", -1, 1, 0, 3, Q("2.6388 mm")),
])
pocket11 = doc.addObject("PartDesign::Pocket", "Pocket010")
body.addObject(pocket11)
pocket11.Profile = sketch17
pocket11.Length = 6

# Sketch on XY plane
sketch18 = doc.addObject("Sketcher::SketchObject", "Sketch017")
body.addObject(sketch18)
sketch18.AttachmentSupport = (doc.XY_Plane, [""])
sketch18.MapMode = "FlatFace"
sketch18.AttachmentOffset = App.Placement(App.Vector(0, 0, 6), App.Rotation())
sketch18.addGeometry([
    Part.Circle(App.Vector(-3.4, 148, 0), App.Vector(0, 0, 1), 1.5),
    Part.Circle(App.Vector(-3.4, 128, 0), App.Vector(0, 0, 1), 1.5),
], False)
sketch18.addConstraint([
    Sketcher.Constraint("Equal", 0, 1),
    Sketcher.Constraint("Vertical", 0, 3, 1, 3),
    Sketcher.Constraint("Diameter", 0, Q("3.05 mm")),
    Sketcher.Constraint("DistanceY", -1, 1, 0, 3, Q("148 mm")),
    Sketcher.Constraint("DistanceY", -1, 1, 1, 3, Q("128 mm")),
    Sketcher.Constraint("DistanceX", 0, 3, -1, 1, Q("3.3912 mm")),
])
pocket12 = doc.addObject("PartDesign::Pocket", "Pocket011")
body.addObject(pocket12)
pocket12.Profile = sketch18
pocket12.Length = 6

# Sketch on XY plane
sketch19 = doc.addObject("Sketcher::SketchObject", "Sketch018")
body.addObject(sketch19)
sketch19.AttachmentSupport = (doc.XY_Plane, [""])
sketch19.MapMode = "FlatFace"
sketch19.AttachmentOffset = App.Placement(App.Vector(0, 0, 6), App.Rotation())
sketch19.addGeometry([
    Part.LineSegment(App.Vector(4, 118, 0), App.Vector(4, 72, 0)),  # 0
    Part.LineSegment(App.Vector(4, 72, 0), App.Vector(22, 72, 0)),  # 1
    Part.LineSegment(App.Vector(22, 72, 0), App.Vector(22, 118, 0)),  # 2
    Part.LineSegment(App.Vector(22, 118, 0), App.Vector(4, 118, 0)),  # 3
    Part.LineSegment(App.Vector(4, 66, 0), App.Vector(4, 20, 0)),  # 4
    Part.LineSegment(App.Vector(4, 20, 0), App.Vector(22, 20, 0)),  # 5
    Part.LineSegment(App.Vector(22, 20, 0), App.Vector(22, 66, 0)),  # 6
    Part.LineSegment(App.Vector(22, 66, 0), App.Vector(4, 66, 0)),  # 7
    Part.LineSegment(App.Vector(-20, 66, 0), App.Vector(-20, 20, 0)),  # 8
    Part.LineSegment(App.Vector(-20, 20, 0), App.Vector(-2, 20, 0)),  # 9
    Part.LineSegment(App.Vector(-2, 20, 0), App.Vector(-2, 66, 0)),  # 10
    Part.LineSegment(App.Vector(-2, 66, 0), App.Vector(-20, 66, 0)),  # 11
    Part.LineSegment(App.Vector(-20, 118, 0), App.Vector(-20, 72, 0)),  # 12
    Part.LineSegment(App.Vector(-20, 72, 0), App.Vector(-2, 72, 0)),  # 13
    Part.LineSegment(App.Vector(-2, 72, 0), App.Vector(-2, 118, 0)),  # 14
    Part.LineSegment(App.Vector(-2, 118, 0), App.Vector(-20, 118, 0)),  # 15
    Part.LineSegment(App.Vector(1, 208, 0), App.Vector(-18, 178, 0)),  # 16
    Part.LineSegment(App.Vector(-18, 178, 0), App.Vector(21, 178, 0)),  # 17
    Part.LineSegment(App.Vector(21, 178, 0), App.Vector(1, 208, 0)),  # 18
    Part.LineSegment(App.Vector(23, 241, 0), App.Vector(3, 212, 0)),  # 19
    Part.LineSegment(App.Vector(3, 212, 0), App.Vector(23, 182, 0)),  # 20
    Part.LineSegment(App.Vector(23, 182, 0), App.Vector(23, 241, 0)),  # 21
    Part.LineSegment(App.Vector(-21, 241, 0), App.Vector(-21, 182, 0)),  # 22
    Part.LineSegment(App.Vector(-21, 182, 0), App.Vector(-1, 212, 0)),  # 23
    Part.LineSegment(App.Vector(-1, 212, 0), App.Vector(-21, 241, 0)),  # 24
    Part.LineSegment(App.Vector(-18, 245, 0), App.Vector(1, 215, 0)),  # 25
    Part.LineSegment(App.Vector(1, 215, 0), App.Vector(21, 245, 0)),  # 26
    Part.LineSegment(App.Vector(21, 245, 0), App.Vector(-18, 245, 0)),  # 27
], False)
sketch19.addConstraint([
    Sketcher.Constraint("Coincident", 0, 2, 1, 1),
    Sketcher.Constraint("Coincident", 1, 2, 2, 1),
    Sketcher.Constraint("Coincident", 2, 2, 3, 1),
    Sketcher.Constraint("Coincident", 3, 2, 0, 1),
    Sketcher.Constraint("Coincident", 4, 2, 5, 1),
    Sketcher.Constraint("Coincident", 5, 2, 6, 1),
    Sketcher.Constraint("Coincident", 6, 2, 7, 1),
    Sketcher.Constraint("Coincident", 7, 2, 4, 1),
    Sketcher.Constraint("Coincident", 8, 2, 9, 1),
    Sketcher.Constraint("Coincident", 9, 2, 10, 1),
    Sketcher.Constraint("Coincident", 10, 2, 11, 1),
    Sketcher.Constraint("Coincident", 11, 2, 8, 1),
    Sketcher.Constraint("Coincident", 12, 2, 13, 1),
    Sketcher.Constraint("Coincident", 13, 2, 14, 1),
    Sketcher.Constraint("Coincident", 14, 2, 15, 1),
    Sketcher.Constraint("Coincident", 15, 2, 12, 1),
    Sketcher.Constraint("Coincident", 16, 2, 17, 1),
    Sketcher.Constraint("Coincident", 17, 2, 18, 1),
    Sketcher.Constraint("Coincident", 18, 2, 16, 1),
    Sketcher.Constraint("Coincident", 19, 2, 20, 1),
    Sketcher.Constraint("Coincident", 20, 2, 21, 1),
    Sketcher.Constraint("Coincident", 21, 2, 19, 1),
    Sketcher.Constraint("Coincident", 22, 2, 23, 1),
    Sketcher.Constraint("Coincident", 23, 2, 24, 1),
    Sketcher.Constraint("Coincident", 24, 2, 22, 1),
    Sketcher.Constraint("Coincident", 25, 2, 26, 1),
    Sketcher.Constraint("Coincident", 26, 2, 27, 1),
    Sketcher.Constraint("Coincident", 27, 2, 25, 1),
    Sketcher.Constraint("Vertical", 0),
    Sketcher.Constraint("Horizontal", 1),
    Sketcher.Constraint("Vertical", 2),
    Sketcher.Constraint("Horizontal", 3),
    Sketcher.Constraint("Vertical", 4),
    Sketcher.Constraint("Horizontal", 5),
    Sketcher.Constraint("Vertical", 6),
    Sketcher.Constraint("Horizontal", 7),
    Sketcher.Constraint("Vertical", 8),
    Sketcher.Constraint("Horizontal", 9),
    Sketcher.Constraint("Vertical", 10),
    Sketcher.Constraint("Horizontal", 11),
    Sketcher.Constraint("Vertical", 12),
    Sketcher.Constraint("Horizontal", 13),
    Sketcher.Constraint("Vertical", 14),
    Sketcher.Constraint("Horizontal", 15),
    Sketcher.Constraint("Horizontal", 17),
    Sketcher.Constraint("Vertical", 21),
    Sketcher.Constraint("Vertical", 22),
    Sketcher.Constraint("Horizontal", 27),
    Sketcher.Constraint("Parallel", 16, 19),
    Sketcher.Constraint("Parallel", 18, 20),
    Sketcher.Constraint("Parallel", 19, 23),
    Sketcher.Constraint("Parallel", 20, 24),
    Sketcher.Constraint("Parallel", 24, 25),
    Sketcher.Constraint("Parallel", 23, 26),
    Sketcher.Constraint("Horizontal", 5, 2, 8, 2),
    Sketcher.Constraint("Horizontal", 7, 2, 10, 2),
    Sketcher.Constraint("Horizontal", 1, 2, 12, 2),
    Sketcher.Constraint("Horizontal", 3, 2, 14, 2),
    Sketcher.Constraint("Horizontal", 20, 2, 22, 2),
    Sketcher.Constraint("Horizontal", 19, 2, 23, 2),
    Sketcher.Constraint("Horizontal", 21, 2, 24, 2),
    Sketcher.Constraint("Vertical", 3, 2, 4, 2),
    Sketcher.Constraint("Vertical", 2, 2, 5, 2),
    Sketcher.Constraint("Vertical", 11, 2, 12, 2),
    Sketcher.Constraint("Vertical", 10, 2, 13, 2),
    Sketcher.Constraint("Vertical", 18, 2, 25, 2),
    Sketcher.Constraint("Vertical", 17, 2, 26, 2),
    Sketcher.Constraint("Equal", 7, 9),
    Sketcher.Constraint("Equal", 2, 4),
    Sketcher.Constraint("Equal", 18, 19),
    Sketcher.Constraint("DistanceX", -1, 1, 1, 2, Q("22 mm")),
    Sketcher.Constraint("DistanceY", -1, 1, 4, 2, Q("20 mm")),
    Sketcher.Constraint("DistanceX", -1, 1, 20, 2, Q("23 mm")),
    Sketcher.Constraint("DistanceY", -1, 1, 26, 2, Q("245 mm")),
    Sketcher.Constraint("DistanceY", 6, 2, 1, 2, Q("6 mm")),
    Sketcher.Constraint("DistanceX", 9, 2, 4, 2, Q("6 mm")),
    Sketcher.Constraint("DistanceX", 18, 2, 3, 2, Q("3 mm")),
    Sketcher.Constraint("DistanceY", 0, 2, 0, 1, Q("45.985 mm")),
    Sketcher.Constraint("DistanceY", -1, 1, 16, 2, Q("178.03 mm")),
    Sketcher.Constraint("DistanceX", 1, 1, 1, 2, Q("17.8912 mm")),
    Sketcher.Constraint("DistanceY", -1, 1, 19, 2, Q("211.515 mm")),
    Sketcher.Constraint("DistanceX", 17, 1, 17, 2, Q("39.00344 mm")),
    Sketcher.Constraint("DistanceX", 22, 2, -1, 1, Q("20.782401 mm")),
    Sketcher.Constraint("Distance", 16, Q("35.63913 mm")),
])
pocket13 = doc.addObject("PartDesign::Pocket", "Pocket012")
body.addObject(pocket13)
pocket13.Profile = sketch19
pocket13.Length = 10
doc.recompute()

fillet6 = doc.addObject("PartDesign::Fillet", "Fillet005")
body.addObject(fillet6)
fillet6.Base = (pocket13, edges_at(pocket13, [
    (4.109, 65.985, 3),
    (22, 65.985, 3),
    (22, 20, 3),
    (4.109, 20, 3),
    (-1.891, 65.985, 3),
    (-1.891, 20, 3),
    (-19.782, 20, 3),
    (-19.782, 65.985, 3),
    (-19.782, 71.985, 3),
    (-19.782, 117.97, 3),
    (-1.891, 117.97, 3),
    (-1.891, 71.985, 3),
    (1.109, 207.86, 3),
    (20.611, 178.03, 3),
    (-18.393, 178.03, 3),
    (-18.393, 245, 3),
    (20.611, 245, 3),
    (1.109, 215.17, 3),
    (-20.782, 181.685, 3),
    (-20.782, 241.345, 3),
    (-1.281, 211.515, 3),
    (3.498, 211.515, 3),
    (23, 241.345, 3),
    (23, 181.685, 3),
    (4.109, 117.97, 3),
    (22, 117.97, 3),
    (22, 71.985, 3),
    (4.109, 71.985, 3),
]))
fillet6.Radius = 2

doc.recompute()
